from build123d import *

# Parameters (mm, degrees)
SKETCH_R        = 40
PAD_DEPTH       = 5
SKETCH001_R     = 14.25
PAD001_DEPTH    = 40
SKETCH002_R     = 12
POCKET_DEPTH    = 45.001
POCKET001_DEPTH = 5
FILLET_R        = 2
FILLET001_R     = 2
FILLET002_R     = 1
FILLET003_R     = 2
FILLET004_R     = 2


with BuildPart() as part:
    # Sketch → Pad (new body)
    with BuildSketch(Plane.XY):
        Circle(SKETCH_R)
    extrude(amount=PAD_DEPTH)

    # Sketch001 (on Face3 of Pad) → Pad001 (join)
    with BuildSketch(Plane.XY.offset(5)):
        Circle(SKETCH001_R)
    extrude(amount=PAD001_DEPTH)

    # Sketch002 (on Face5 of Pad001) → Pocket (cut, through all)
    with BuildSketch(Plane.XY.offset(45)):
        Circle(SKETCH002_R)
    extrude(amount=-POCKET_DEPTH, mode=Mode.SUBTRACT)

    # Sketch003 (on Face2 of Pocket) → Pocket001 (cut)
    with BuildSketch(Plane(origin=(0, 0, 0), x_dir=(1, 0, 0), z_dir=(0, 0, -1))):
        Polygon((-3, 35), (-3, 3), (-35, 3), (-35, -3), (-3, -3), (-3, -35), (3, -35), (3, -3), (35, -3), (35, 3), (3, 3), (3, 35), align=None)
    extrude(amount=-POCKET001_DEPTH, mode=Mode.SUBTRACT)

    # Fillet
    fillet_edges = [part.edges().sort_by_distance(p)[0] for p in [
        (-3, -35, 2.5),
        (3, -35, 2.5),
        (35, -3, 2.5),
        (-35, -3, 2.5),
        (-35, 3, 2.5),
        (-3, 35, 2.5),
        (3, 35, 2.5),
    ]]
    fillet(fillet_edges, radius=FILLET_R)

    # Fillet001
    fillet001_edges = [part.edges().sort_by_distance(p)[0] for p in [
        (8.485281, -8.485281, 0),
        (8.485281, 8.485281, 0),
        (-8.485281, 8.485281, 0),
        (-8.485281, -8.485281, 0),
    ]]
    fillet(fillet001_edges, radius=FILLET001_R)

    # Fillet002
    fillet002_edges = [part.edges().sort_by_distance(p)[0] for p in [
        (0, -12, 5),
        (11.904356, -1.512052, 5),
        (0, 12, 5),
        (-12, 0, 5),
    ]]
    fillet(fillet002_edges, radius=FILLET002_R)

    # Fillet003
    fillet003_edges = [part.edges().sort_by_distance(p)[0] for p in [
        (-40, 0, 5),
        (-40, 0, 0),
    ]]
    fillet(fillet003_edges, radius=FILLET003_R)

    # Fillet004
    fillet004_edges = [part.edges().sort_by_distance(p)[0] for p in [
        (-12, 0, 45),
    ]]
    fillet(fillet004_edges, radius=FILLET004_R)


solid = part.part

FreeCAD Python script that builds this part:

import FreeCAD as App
import Part
import Sketcher


def edges_at(feature, points):
    """Names of the edges that pass closest to the given points."""
    edges = feature.Shape.Edges
    near = lambda p: min(range(len(edges)), key=lambda i: edges[i].distToShape(Part.Vertex(*p))[0])
    return sorted({f"Edge{near(p) + 1}" for p in points})


def add_polygon(sketch, points):
    """Adds a closed chain of lines whose ends are joined by coincident constraints."""
    first, n = sketch.GeometryCount, len(points)
    for a, b in zip(points, points[1:] + points[:1]):
        sketch.addGeometry(Part.LineSegment(App.Vector(*a, 0), App.Vector(*b, 0)), False)
    for i in range(n):
        sketch.addConstraint(Sketcher.Constraint("Coincident", first + i, 2, first + (i + 1) % n, 1))

doc = App.newDocument("Part")
params = doc.addObject("Spreadsheet::Sheet", "Params")
for row, (alias, value) in enumerate([
    ("sketch1_diameter", "80 mm"),
    ("pad1_length", "5 mm"),
    ("sketch2_diameter", "28.5 mm"),
    ("pad2_length", "40 mm"),
    ("sketch3_diameter", "24 mm"),
    ("sketch4_width", "32 mm"),
    ("sketch4_width2", "6 mm"),
    ("pocket2_length", "5 mm"),
    ("fillet_radius", "2 mm"),
    ("fillet2_radius", "2 mm"),
    ("fillet3_radius", "1 mm"),
    ("fillet4_radius", "2 mm"),
    ("fillet5_radius", "2 mm"),
], start=1):
    params.set(f"A{row}", alias)
    params.set(f"B{row}", "=" + value)
    params.setAlias(f"B{row}", alias)

body = doc.addObject("PartDesign::Body", "Body")

sketch1 = body.newObject("Sketcher::SketchObject", "Sketch")
sketch1.AttachmentSupport = (doc.getObject("XY_Plane"), [""])
sketch1.MapMode = "FlatFace"
sketch1.addGeometry(Part.Circle(App.Vector(0, 0, 0), App.Vector(0, 0, 1), 40), False)
sketch1.addConstraint(Sketcher.Constraint("Coincident", 0, 3, -1, 1))
sketch1.addConstraint(Sketcher.Constraint("Diameter", 0, 80.0))
sketch1.setExpression("Constraints[1]", "Params.sketch1_diameter")
pad1 = body.newObject("PartDesign::Pad", "Pad")
pad1.Profile = sketch1
pad1.setExpression("Length", "Params.pad1_length")

sketch2 = body.newObject("Sketcher::SketchObject", "Sketch001")
sketch2.AttachmentSupport = (doc.getObject("XY_Plane"), [""])
sketch2.MapMode = "FlatFace"
sketch2.AttachmentOffset = App.Placement(App.Vector(0, 0, 5), App.Rotation())
sketch2.addGeometry(Part.Circle(App.Vector(0, 0, 0), App.Vector(0, 0, 1), 14.25), False)
sketch2.addConstraint(Sketcher.Constraint("Coincident", 0, 3, -1, 1))
sketch2.addConstraint(Sketcher.Constraint("Diameter", 0, 28.5))
sketch2.setExpression("Constraints[1]", "Params.sketch2_diameter")
pad2 = body.newObject("PartDesign::Pad", "Pad001")
pad2.Profile = sketch2
pad2.setExpression("Length", "Params.pad2_length")

sketch3 = body.newObject("Sketcher::SketchObject", "Sketch002")
sketch3.AttachmentSupport = (doc.getObject("XY_Plane"), [""])
sketch3.MapMode = "FlatFace"
sketch3.AttachmentOffset = App.Placement(App.Vector(0, 0, 45), App.Rotation())
sketch3.addGeometry(Part.Circle(App.Vector(0, 0, 0), App.Vector(0, 0, 1), 12), False)
sketch3.addConstraint(Sketcher.Constraint("Coincident", 0, 3, -1, 1))
sketch3.addConstraint(Sketcher.Constraint("Diameter", 0, 24.0))
sketch3.setExpression("Constraints[1]", "Params.sketch3_diameter")
pocket1 = body.newObject("PartDesign::Pocket", "Pocket")
pocket1.Profile = sketch3
pocket1.Type = "ThroughAll"

sketch4 = body.newObject("Sketcher::SketchObject", "Sketch003")
sketch4.AttachmentSupport = (doc.getObject("XY_Plane"), [""])
sketch4.MapMode = "FlatFace"
add_polygon(sketch4, [(-3, -35), (-3, -3), (-35, -3), (-35, 3), (-3, 3), (-3, 35), (3, 35), (3, 3), (35, 3), (35, -3), (3, -3), (3, -35)])
sketch4.addConstraint(Sketcher.Constraint("Vertical", 0))
sketch4.addConstraint(Sketcher.Constraint("Horizontal", 1))
sketch4.addConstraint(Sketcher.Constraint("Vertical", 2))
sketch4.addConstraint(Sketcher.Constraint("Horizontal", 3))
sketch4.addConstraint(Sketcher.Constraint("Vertical", 4))
sketch4.addConstraint(Sketcher.Constraint("Horizontal", 5))
sketch4.addConstraint(Sketcher.Constraint("Vertical", 6))
sketch4.addConstraint(Sketcher.Constraint("Horizontal", 7))
sketch4.addConstraint(Sketcher.Constraint("Vertical", 8))
sketch4.addConstraint(Sketcher.Constraint("Horizontal", 9))
sketch4.addConstraint(Sketcher.Constraint("Vertical", 10))
sketch4.addConstraint(Sketcher.Constraint("Horizontal", 11))
sketch4.addConstraint(Sketcher.Constraint("Symmetric", 0, 2, 6, 2, -1, 1))
sketch4.addConstraint(Sketcher.Constraint("Symmetric", 2, 2, 8, 2, -1, 1))
sketch4.addConstraint(Sketcher.Constraint("Symmetric", 4, 2, 10, 2, -1, 1))
sketch4.addConstraint(Sketcher.Constraint("Symmetric", 3, 2, 6, 2, -2))
sketch4.addConstraint(Sketcher.Constraint("Equal", 9, 0))
sketch4.addConstraint(Sketcher.Constraint("Equal", 11, 2))
sketch4.addConstraint(Sketcher.Constraint("DistanceX", 1, 2, 1, 1, 32.0))
sketch4.addConstraint(Sketcher.Constraint("DistanceX", 5, 1, 5, 2, 6.0))
sketch4.setExpression("Constraints[30]", "Params.sketch4_width")
sketch4.setExpression("Constraints[31]", "Params.sketch4_width2")
pocket2 = body.newObject("PartDesign::Pocket", "Pocket001")
pocket2.Profile = sketch4
pocket2.setExpression("Length", "Params.pocket2_length")
pocket2.Reversed = True
doc.recompute()

fillet = body.newObject("PartDesign::Fillet", "Fillet")
fillet.Base = (pocket2, edges_at(pocket2, [
    (-3, -35, 2.5),
    (3, -35, 2.5),
    (35, -3, 2.5),
    (-35, -3, 2.5),
    (-35, 3, 2.5),
    (-3, 35, 2.5),
    (3, 35, 2.5),
]))
fillet.setExpression("Radius", "Params.fillet_radius")
doc.recompute()

fillet2 = body.newObject("PartDesign::Fillet", "Fillet001")
fillet2.Base = (fillet, edges_at(fillet, [
    (8.485, -8.485, 0),
    (8.485, 8.485, 0),
    (-8.485, 8.485, 0),
    (-8.485, -8.485, 0),
]))
fillet2.setExpression("Radius", "Params.fillet2_radius")
doc.recompute()

fillet3 = body.newObject("PartDesign::Fillet", "Fillet002")
fillet3.Base = (fillet2, edges_at(fillet2, [
    (0, -12, 5),
    (11.904, -1.512, 5),
    (0, 12, 5),
    (-12, 0, 5),
]))
fillet3.setExpression("Radius", "Params.fillet3_radius")
doc.recompute()

fillet4 = body.newObject("PartDesign::Fillet", "Fillet003")
fillet4.Base = (fillet3, edges_at(fillet3, [(-40, 0, 5), (-40, 0, 0)]))
fillet4.setExpression("Radius", "Params.fillet4_radius")
doc.recompute()

fillet5 = body.newObject("PartDesign::Fillet", "Fillet004")
fillet5.Base = (fillet4, edges_at(fillet4, [(-12, 0, 45)]))
fillet5.setExpression("Radius", "Params.fillet5_radius")

doc.recompute()
